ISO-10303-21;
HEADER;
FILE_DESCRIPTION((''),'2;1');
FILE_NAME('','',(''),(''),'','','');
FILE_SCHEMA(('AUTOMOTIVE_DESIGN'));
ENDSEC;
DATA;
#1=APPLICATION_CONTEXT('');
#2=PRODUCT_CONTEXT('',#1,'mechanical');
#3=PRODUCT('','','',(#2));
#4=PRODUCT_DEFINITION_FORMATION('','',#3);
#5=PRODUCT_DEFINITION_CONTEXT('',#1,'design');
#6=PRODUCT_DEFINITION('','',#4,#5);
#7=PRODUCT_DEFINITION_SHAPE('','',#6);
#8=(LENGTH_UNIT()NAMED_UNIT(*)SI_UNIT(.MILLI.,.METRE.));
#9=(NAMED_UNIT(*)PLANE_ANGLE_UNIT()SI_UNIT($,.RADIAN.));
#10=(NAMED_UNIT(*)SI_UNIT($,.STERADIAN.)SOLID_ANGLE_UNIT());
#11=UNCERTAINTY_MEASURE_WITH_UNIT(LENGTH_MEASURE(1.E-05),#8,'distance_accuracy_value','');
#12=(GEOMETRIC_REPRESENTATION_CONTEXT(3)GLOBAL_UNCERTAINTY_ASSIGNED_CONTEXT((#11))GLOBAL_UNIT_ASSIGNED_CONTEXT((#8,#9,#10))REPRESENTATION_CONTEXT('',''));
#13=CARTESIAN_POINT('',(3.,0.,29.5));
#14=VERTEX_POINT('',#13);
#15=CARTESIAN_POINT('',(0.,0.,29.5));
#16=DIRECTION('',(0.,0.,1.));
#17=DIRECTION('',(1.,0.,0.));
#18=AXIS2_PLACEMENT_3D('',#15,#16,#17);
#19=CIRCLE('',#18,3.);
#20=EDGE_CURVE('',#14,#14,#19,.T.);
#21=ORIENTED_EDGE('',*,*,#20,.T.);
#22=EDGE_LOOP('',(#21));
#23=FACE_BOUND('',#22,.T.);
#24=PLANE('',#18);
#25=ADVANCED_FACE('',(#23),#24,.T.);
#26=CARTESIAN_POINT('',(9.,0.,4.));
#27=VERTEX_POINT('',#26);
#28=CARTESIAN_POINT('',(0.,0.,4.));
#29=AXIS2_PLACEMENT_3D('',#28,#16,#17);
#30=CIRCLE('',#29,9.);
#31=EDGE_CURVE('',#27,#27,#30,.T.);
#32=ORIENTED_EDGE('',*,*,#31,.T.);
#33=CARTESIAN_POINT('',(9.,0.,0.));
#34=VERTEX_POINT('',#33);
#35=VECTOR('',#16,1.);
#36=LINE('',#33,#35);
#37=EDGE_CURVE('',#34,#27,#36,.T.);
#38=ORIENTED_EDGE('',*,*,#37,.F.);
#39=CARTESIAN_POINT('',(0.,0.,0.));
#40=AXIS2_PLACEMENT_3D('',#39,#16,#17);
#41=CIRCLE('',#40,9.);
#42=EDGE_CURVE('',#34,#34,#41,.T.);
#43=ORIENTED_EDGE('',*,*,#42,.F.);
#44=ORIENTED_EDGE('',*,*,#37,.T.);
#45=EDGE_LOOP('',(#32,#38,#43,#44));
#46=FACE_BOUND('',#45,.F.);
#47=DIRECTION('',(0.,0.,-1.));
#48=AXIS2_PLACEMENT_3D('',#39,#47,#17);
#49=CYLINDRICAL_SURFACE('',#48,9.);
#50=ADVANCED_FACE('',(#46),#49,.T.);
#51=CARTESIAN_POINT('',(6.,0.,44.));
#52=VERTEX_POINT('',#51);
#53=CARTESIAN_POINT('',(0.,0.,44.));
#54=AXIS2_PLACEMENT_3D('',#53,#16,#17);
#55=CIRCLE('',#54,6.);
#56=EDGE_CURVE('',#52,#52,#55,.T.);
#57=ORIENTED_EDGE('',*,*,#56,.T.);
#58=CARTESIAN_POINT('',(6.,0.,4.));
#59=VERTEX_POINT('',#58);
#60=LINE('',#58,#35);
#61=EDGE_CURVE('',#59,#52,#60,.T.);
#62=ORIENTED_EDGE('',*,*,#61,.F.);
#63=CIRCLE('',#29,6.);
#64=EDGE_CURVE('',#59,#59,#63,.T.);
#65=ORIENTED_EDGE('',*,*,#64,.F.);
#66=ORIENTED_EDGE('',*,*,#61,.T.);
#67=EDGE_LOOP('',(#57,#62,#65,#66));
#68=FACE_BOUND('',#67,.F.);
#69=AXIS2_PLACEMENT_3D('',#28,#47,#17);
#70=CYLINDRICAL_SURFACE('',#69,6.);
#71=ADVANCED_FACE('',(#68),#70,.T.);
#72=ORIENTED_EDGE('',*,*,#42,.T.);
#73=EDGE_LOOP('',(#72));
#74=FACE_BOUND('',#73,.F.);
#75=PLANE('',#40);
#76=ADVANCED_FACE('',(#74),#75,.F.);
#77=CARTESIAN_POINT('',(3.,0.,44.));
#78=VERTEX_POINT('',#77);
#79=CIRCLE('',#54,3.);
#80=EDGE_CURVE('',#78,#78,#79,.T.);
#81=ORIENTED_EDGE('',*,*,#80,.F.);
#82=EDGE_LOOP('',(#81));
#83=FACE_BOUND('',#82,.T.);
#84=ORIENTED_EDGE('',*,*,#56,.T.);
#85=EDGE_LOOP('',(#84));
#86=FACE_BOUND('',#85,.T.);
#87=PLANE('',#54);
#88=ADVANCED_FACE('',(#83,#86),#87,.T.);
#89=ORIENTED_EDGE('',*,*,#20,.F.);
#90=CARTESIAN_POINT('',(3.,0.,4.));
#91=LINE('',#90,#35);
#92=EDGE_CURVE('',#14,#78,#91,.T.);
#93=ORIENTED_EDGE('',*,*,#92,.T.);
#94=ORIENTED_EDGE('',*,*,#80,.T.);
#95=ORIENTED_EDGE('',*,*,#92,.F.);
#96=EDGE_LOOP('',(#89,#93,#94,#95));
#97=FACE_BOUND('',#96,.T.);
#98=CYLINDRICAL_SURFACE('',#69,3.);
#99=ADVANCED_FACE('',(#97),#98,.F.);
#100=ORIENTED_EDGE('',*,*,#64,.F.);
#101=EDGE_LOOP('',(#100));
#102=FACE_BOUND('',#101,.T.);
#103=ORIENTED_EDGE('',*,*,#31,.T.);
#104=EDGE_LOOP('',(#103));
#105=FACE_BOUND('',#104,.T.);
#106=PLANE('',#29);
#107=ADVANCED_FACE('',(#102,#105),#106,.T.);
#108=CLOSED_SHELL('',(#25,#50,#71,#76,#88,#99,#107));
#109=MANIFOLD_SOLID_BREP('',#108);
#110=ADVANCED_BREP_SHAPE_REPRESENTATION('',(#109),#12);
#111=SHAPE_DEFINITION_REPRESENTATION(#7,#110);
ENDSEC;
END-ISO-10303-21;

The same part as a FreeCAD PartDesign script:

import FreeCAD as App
import Part
import Sketcher
from FreeCAD import Vector

doc = App.newDocument("Part")
params = doc.addObject("Spreadsheet::Sheet", "Params")
for row, (alias, value) in enumerate([
    ("sketch1_diameter", "18 mm"),
    ("pad1_length", "4 mm"),
    ("sketch2_diameter", "12 mm"),
    ("sketch2_diameter2", "6 mm"),
    ("pad2_length", "40 mm"),
    ("sketch3_diameter", "6 mm"),
    ("pad3_length", "25.5 mm"),
], start=1):
    params.set(f"A{row}", alias)
    params.set(f"B{row}", "=" + value)
    params.setAlias(f"B{row}", alias)

body = doc.addObject("PartDesign::Body", "Body")

# Sketch on XY plane
sketch1 = body.newObject("Sketcher::SketchObject", "Sketch")
sketch1.AttachmentSupport = (doc.getObject("XY_Plane"), [""])
sketch1.MapMode = "FlatFace"
sketch1.addGeometry(Part.Circle(Vector(0, 0, 0), Vector(0, 0, 1), 9), False)
sketch1.addConstraint([
    Sketcher.Constraint("Coincident", 0, 3, -1, 1),
    Sketcher.Constraint("Diameter", 0, 18.0),
])
sketch1.setExpression("Constraints[1]", "Params.sketch1_diameter")
pad1 = body.newObject("PartDesign::Pad", "Pad")
pad1.Profile = sketch1
pad1.setExpression("Length", "Params.pad1_length")

# Sketch on XY plane
sketch2 = body.newObject("Sketcher::SketchObject", "Sketch001")
sketch2.AttachmentSupport = (doc.getObject("XY_Plane"), [""])
sketch2.MapMode = "FlatFace"
sketch2.AttachmentOffset = App.Placement(Vector(0, 0, 4), App.Rotation())
sketch2.addGeometry([
    Part.Circle(Vector(0, 0, 0), Vector(0, 0, 1), 6),
    Part.Circle(Vector(0, 0, 0), Vector(0, 0, 1), 3),
], False)
sketch2.addConstraint([
    Sketcher.Constraint("Coincident", 0, 3, -1, 1),
    Sketcher.Constraint("Coincident", 1, 3, -1, 1),
    Sketcher.Constraint("Diameter", 0, 12.0),
    Sketcher.Constraint("Diameter", 1, 6.0),
])
sketch2.setExpression("Constraints[2]", "Params.sketch2_diameter")
sketch2.setExpression("Constraints[3]", "Params.sketch2_diameter2")
pad2 = body.newObject("PartDesign::Pad", "Pad001")
pad2.Profile = sketch2
pad2.setExpression("Length", "Params.pad2_length")

# Sketch on XY plane
sketch3 = body.newObject("Sketcher::SketchObject", "Sketch002")
sketch3.AttachmentSupport = (doc.getObject("XY_Plane"), [""])
sketch3.MapMode = "FlatFace"
sketch3.AttachmentOffset = App.Placement(Vector(0, 0, 4), App.Rotation())
sketch3.addGeometry(Part.Circle(Vector(0, 0, 0), Vector(0, 0, 1), 3), False)
sketch3.addConstraint([
    Sketcher.Constraint("Coincident", 0, 3, -1, 1),
    Sketcher.Constraint("Diameter", 0, 6.0),
])
sketch3.setExpression("Constraints[1]", "Params.sketch3_diameter")
pad3 = body.newObject("PartDesign::Pad", "Pad002")
pad3.Profile = sketch3
pad3.setExpression("Length", "Params.pad3_length")

doc.recompute()
